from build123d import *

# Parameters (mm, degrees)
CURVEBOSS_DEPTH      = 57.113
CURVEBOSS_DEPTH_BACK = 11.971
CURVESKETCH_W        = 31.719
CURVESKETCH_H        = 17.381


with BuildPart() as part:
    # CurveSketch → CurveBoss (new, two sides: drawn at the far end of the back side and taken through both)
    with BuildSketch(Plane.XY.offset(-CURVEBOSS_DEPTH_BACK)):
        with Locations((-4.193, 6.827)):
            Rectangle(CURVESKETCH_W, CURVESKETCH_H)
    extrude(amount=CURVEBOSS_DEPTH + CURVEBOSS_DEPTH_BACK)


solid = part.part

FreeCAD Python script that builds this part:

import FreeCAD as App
import Part
import Sketcher
Q = App.Units.Quantity

doc = App.newDocument("Part")
params = doc.addObject("Spreadsheet::Sheet", "Params")
for row, (alias, value) in enumerate([
    ("pad1_length", "57.113 mm"),
    ("pad1_length2", "11.971 mm"),
], start=1):
    params.set(f"A{row}", alias)
    params.set(f"B{row}", "=" + value)
    params.setAlias(f"B{row}", alias)

body = doc.addObject("PartDesign::Body", "Body")

# Sketch on XY plane
sketch1 = doc.addObject("Sketcher::SketchObject", "Sketch")
body.addObject(sketch1)
sketch1.AttachmentSupport = (doc.XY_Plane, [""])
sketch1.MapMode = "FlatFace"
sketch1.addGeometry(Part.LineSegment(App.Vector(-20, 16, 0), App.Vector(-20, -2, 0)), False)
sketch1.addGeometry(Part.LineSegment(App.Vector(-20, -2, 0), App.Vector(12, -2, 0)), False)
sketch1.addGeometry(Part.LineSegment(App.Vector(12, -2, 0), App.Vector(12, 16, 0)), False)
sketch1.addGeometry(Part.LineSegment(App.Vector(12, 16, 0), App.Vector(-20, 16, 0)), False)
sketch1.addConstraint(Sketcher.Constraint("Coincident", 0, 2, 1, 1))
sketch1.addConstraint(Sketcher.Constraint("Coincident", 1, 2, 2, 1))
sketch1.addConstraint(Sketcher.Constraint("Coincident", 2, 2, 3, 1))
sketch1.addConstraint(Sketcher.Constraint("Coincident", 3, 2, 0, 1))
sketch1.addConstraint(Sketcher.Constraint("Vertical", 0))
sketch1.addConstraint(Sketcher.Constraint("Horizontal", 1))
sketch1.addConstraint(Sketcher.Constraint("Vertical", 2))
sketch1.addConstraint(Sketcher.Constraint("Horizontal", 3))
sketch1.addConstraint(Sketcher.Constraint("DistanceX", 1, 1, 1, 2, Q("31.719 mm")))
sketch1.addConstraint(Sketcher.Constraint("DistanceY", 0, 2, 0, 1, Q("17.381 mm")))
sketch1.addConstraint(Sketcher.Constraint("DistanceX", 0, 2, -1, 1, Q("20.0525 mm")))
sketch1.addConstraint(Sketcher.Constraint("DistanceY", 0, 2, -1, 1, Q("1.8635 mm")))
pad1 = doc.addObject("PartDesign::Pad", "Pad")
body.addObject(pad1)
pad1.Profile = sketch1
pad1.Type = "TwoLengths"
pad1.setExpression("Length", "Params.pad1_length")
pad1.setExpression("Length2", "Params.pad1_length2")

doc.recompute()
